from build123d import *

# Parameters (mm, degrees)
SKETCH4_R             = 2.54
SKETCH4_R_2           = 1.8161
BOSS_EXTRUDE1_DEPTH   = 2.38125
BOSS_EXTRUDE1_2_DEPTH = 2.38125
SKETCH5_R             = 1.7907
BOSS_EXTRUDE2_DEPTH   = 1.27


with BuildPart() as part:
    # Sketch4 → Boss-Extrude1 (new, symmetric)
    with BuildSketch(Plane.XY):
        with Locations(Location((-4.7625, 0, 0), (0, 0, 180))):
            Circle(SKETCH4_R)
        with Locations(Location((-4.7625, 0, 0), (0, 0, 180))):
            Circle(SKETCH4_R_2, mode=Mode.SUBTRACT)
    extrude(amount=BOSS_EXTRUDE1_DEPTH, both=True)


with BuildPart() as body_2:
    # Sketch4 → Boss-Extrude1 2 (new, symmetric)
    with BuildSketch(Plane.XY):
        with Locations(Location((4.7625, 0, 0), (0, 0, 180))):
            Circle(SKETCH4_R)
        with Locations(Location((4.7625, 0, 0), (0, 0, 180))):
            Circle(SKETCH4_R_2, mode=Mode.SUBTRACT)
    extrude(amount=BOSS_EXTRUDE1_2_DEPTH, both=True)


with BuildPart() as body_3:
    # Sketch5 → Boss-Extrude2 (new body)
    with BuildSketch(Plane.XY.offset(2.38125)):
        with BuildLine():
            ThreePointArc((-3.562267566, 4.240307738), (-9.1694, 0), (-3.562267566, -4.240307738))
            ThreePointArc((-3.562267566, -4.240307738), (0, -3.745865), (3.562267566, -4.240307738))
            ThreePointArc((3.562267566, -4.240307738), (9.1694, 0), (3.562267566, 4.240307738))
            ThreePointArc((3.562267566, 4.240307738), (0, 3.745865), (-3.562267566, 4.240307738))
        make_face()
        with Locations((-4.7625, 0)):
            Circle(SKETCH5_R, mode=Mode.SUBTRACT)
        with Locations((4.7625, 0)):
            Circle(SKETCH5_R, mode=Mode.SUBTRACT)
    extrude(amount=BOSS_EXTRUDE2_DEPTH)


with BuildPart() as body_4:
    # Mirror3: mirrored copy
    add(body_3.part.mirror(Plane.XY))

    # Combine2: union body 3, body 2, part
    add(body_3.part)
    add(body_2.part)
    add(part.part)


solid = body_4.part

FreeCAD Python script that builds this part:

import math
import FreeCAD as App
import Part
import Sketcher

V = App.Vector
Q = App.Units.Quantity

doc = App.newDocument("Part")
body = doc.addObject("PartDesign::Body", "Body")

# Sketch on XY plane
sketch1 = body.newObject("Sketcher::SketchObject", "Sketch")
sketch1.AttachmentSupport = (doc.getObject("XY_Plane"), [""])
sketch1.MapMode = "FlatFace"
sketch1.addGeometry(Part.Circle(V(-4.8, 0, 0), V(0, 0, 1), 2.5), False)
sketch1.addGeometry(Part.Circle(V(-4.8, 0, 0), V(0, 0, 1), 1.8), False)
sketch1.addConstraint(Sketcher.Constraint("Coincident", 1, 3, 0, 3))
sketch1.addConstraint(Sketcher.Constraint("PointOnObject", 0, 3, -1))
sketch1.addConstraint(Sketcher.Constraint("Diameter", 0, Q("0.2 in")))
sketch1.addConstraint(Sketcher.Constraint("Diameter", 1, Q("0.143 in")))
sketch1.addConstraint(Sketcher.Constraint("DistanceX", 0, 3, -1, 1, Q("0.1875 in")))
pad1 = body.newObject("PartDesign::Pad", "Pad")
pad1.Profile = sketch1
pad1.Length = Q("0.1875 in")
pad1.Midplane = True
body2 = doc.addObject("PartDesign::Body", "Body001")

# Sketch on XY plane
sketch2 = body2.newObject("Sketcher::SketchObject", "Sketch001")
sketch2.AttachmentSupport = (doc.getObject("XY_Plane001"), [""])
sketch2.MapMode = "FlatFace"
sketch2.addGeometry(Part.Circle(V(4.8, 0, 0), V(0, 0, 1), 2.5), False)
sketch2.addGeometry(Part.Circle(V(4.8, 0, 0), V(0, 0, 1), 1.8), False)
sketch2.addConstraint(Sketcher.Constraint("Coincident", 1, 3, 0, 3))
sketch2.addConstraint(Sketcher.Constraint("PointOnObject", 0, 3, -1))
sketch2.addConstraint(Sketcher.Constraint("Diameter", 0, Q("0.2 in")))
sketch2.addConstraint(Sketcher.Constraint("Diameter", 1, Q("0.143 in")))
sketch2.addConstraint(Sketcher.Constraint("DistanceX", -1, 1, 0, 3, Q("0.1875 in")))
pad2 = body2.newObject("PartDesign::Pad", "Pad001")
pad2.Profile = sketch2
pad2.Length = Q("0.1875 in")
pad2.Midplane = True
body3 = doc.addObject("PartDesign::Body", "Body002")

# Sketch on XY plane
sketch3 = body3.newObject("Sketcher::SketchObject", "Sketch002")
sketch3.AttachmentSupport = (doc.getObject("XY_Plane002"), [""])
sketch3.MapMode = "FlatFace"
sketch3.AttachmentOffset = App.Placement(V(0, 0, 0.09375 * 25.4), App.Rotation())
sketch3.addGeometry(Part.ArcOfCircle(Part.Circle(V(-4.8, 0, 0), V(0, 0, 1), 4.4), math.radians(74), math.radians(286)), False)
sketch3.addGeometry(Part.ArcOfCircle(Part.Circle(V(0, -16.8, 0), V(0, 0, 1), 13.1), math.radians(74), math.radians(106)), False)
sketch3.addGeometry(Part.ArcOfCircle(Part.Circle(V(4.8, 0, 0), V(0, 0, 1), 4.4), math.radians(-106), math.radians(106)), False)
sketch3.addGeometry(Part.ArcOfCircle(Part.Circle(V(0, 16.8, 0), V(0, 0, 1), 13.1), math.radians(-106), math.radians(-74)), False)
sketch3.addGeometry(Part.Circle(V(-4.8, 0, 0), V(0, 0, 1), 1.8), False)
sketch3.addGeometry(Part.Circle(V(4.8, 0, 0), V(0, 0, 1), 1.8), False)
sketch3.addConstraint(Sketcher.Constraint("Tangent", 0, 2, 1, 2))
sketch3.addConstraint(Sketcher.Constraint("Tangent", 1, 1, 2, 1))
sketch3.addConstraint(Sketcher.Constraint("Tangent", 2, 2, 3, 2))
sketch3.addConstraint(Sketcher.Constraint("Tangent", 3, 1, 0, 1))
sketch3.addConstraint(Sketcher.Constraint("Coincident", 4, 3, 0, 3))
sketch3.addConstraint(Sketcher.Constraint("Coincident", 5, 3, 2, 3))
sketch3.addConstraint(Sketcher.Constraint("Equal", 0, 2))
sketch3.addConstraint(Sketcher.Constraint("Equal", 1, 3))
sketch3.addConstraint(Sketcher.Constraint("Equal", 4, 5))
sketch3.addConstraint(Sketcher.Constraint("Symmetric", 0, 3, 2, 3, -1, 1))
sketch3.addConstraint(Sketcher.Constraint("PointOnObject", 0, 3, -1))
sketch3.addConstraint(Sketcher.Constraint("Diameter", 4, Q("0.141 in")))
sketch3.addConstraint(Sketcher.Constraint("Radius", 0, Q("0.1735 in")))
sketch3.addConstraint(Sketcher.Constraint("DistanceX", 0, 3, -1, 1, Q("0.1875 in")))
sketch3.addConstraint(Sketcher.Constraint("Radius", 1, Q("13.079597 mm")))
pad3 = body3.newObject("PartDesign::Pad", "Pad002")
pad3.Profile = sketch3
pad3.Length = Q("0.05 in")
body4 = doc.addObject("PartDesign::Body", "Body003")
body4.AllowCompound = True
doc.recompute()

mirroring = doc.addObject("Part::Mirroring", "Mirroring")
mirroring.Source = body3
mirroring.Base = V(0, 0, 0)
mirroring.Normal = V(0, 0, 1)
body4.BaseFeature = mirroring
doc.recompute()

boolean = body4.newObject("PartDesign::Boolean", "Boolean")
boolean.Type = "Fuse"
boolean.addObjects([body3])
doc.recompute()

boolean2 = body4.newObject("PartDesign::Boolean", "Boolean001")
boolean2.Type = "Fuse"
boolean2.addObjects([body2])
doc.recompute()

boolean3 = body4.newObject("PartDesign::Boolean", "Boolean002")
boolean3.Type = "Fuse"
boolean3.addObjects([body])
mirroring.Visibility = False

doc.recompute()
